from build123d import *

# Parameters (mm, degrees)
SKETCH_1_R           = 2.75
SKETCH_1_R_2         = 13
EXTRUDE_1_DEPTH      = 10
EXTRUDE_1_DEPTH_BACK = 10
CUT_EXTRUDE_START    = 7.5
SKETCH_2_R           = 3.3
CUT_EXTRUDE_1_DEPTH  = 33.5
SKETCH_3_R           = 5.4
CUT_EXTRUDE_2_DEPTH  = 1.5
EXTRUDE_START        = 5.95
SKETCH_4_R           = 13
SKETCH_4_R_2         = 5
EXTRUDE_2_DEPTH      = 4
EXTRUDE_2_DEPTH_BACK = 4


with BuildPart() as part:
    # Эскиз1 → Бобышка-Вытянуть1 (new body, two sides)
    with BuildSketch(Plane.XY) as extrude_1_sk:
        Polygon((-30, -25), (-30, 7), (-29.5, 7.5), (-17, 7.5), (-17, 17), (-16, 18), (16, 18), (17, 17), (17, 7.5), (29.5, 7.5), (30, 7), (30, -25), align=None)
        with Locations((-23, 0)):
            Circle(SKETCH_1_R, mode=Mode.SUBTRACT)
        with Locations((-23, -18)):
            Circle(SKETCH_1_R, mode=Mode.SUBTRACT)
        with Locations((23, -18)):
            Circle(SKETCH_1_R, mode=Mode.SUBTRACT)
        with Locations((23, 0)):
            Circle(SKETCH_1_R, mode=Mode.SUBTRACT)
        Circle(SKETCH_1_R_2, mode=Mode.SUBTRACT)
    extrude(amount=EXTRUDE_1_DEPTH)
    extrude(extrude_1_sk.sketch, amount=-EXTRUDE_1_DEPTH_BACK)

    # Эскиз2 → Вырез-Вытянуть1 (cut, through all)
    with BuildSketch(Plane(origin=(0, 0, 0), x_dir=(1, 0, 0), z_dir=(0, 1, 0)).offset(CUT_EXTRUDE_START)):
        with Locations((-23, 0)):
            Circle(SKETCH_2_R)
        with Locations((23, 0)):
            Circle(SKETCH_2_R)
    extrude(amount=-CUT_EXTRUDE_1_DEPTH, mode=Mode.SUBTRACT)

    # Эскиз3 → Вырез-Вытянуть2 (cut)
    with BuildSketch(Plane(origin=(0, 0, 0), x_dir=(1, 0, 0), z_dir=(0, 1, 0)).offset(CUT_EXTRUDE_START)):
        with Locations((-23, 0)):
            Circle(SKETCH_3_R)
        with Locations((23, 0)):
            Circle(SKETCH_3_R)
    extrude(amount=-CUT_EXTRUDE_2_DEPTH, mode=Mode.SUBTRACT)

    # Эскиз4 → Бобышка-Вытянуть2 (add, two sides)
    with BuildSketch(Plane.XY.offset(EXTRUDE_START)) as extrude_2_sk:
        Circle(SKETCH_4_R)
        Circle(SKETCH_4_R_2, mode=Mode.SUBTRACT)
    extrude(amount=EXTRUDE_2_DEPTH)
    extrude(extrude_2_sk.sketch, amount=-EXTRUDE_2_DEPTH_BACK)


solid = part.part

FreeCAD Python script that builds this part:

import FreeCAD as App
import Part
import Sketcher
from FreeCAD import Vector
Q = App.Units.Quantity


def add_polygon(sketch, points):
    """Adds a closed chain of lines whose ends are joined by coincident constraints."""
    first, n = sketch.GeometryCount, len(points)
    for a, b in zip(points, points[1:] + points[:1]):
        sketch.addGeometry(Part.LineSegment(App.Vector(*a, 0), App.Vector(*b, 0)), False)
    for i in range(n):
        sketch.addConstraint(Sketcher.Constraint("Coincident", first + i, 2, first + (i + 1) % n, 1))

doc = App.newDocument("Part")
body = doc.addObject("PartDesign::Body", "Body")

# Sketch on XY plane
sketch1 = body.newObject("Sketcher::SketchObject", "Sketch")
sketch1.AttachmentSupport = (doc.getObject("XY_Plane"), [""])
sketch1.MapMode = "FlatFace"
add_polygon(sketch1, [(-30, 7), (-30, -25), (30, -25), (30, 7), (29.5, 7.5), (17, 7.5), (17, 17), (16, 18), (-16, 18), (-17, 17), (-17, 7.5), (-29.5, 7.5)])  # lines 0-11
sketch1.addGeometry(Part.Circle(Vector(23, -18, 0), Vector(0, 0, 1), 2.8), False)  # 12
sketch1.addGeometry(Part.Circle(Vector(-23, -18, 0), Vector(0, 0, 1), 2.8), False)  # 13
sketch1.addGeometry(Part.Circle(Vector(23, 0, 0), Vector(0, 0, 1), 2.8), False)  # 14
sketch1.addGeometry(Part.Circle(Vector(0, 0, 0), Vector(0, 0, 1), 13), False)  # 15
sketch1.addGeometry(Part.Circle(Vector(-23, 0, 0), Vector(0, 0, 1), 2.8), False)  # 16
sketch1.addConstraint([
    Sketcher.Constraint("Vertical", 0),
    Sketcher.Constraint("Horizontal", 1),
    Sketcher.Constraint("Vertical", 2),
    Sketcher.Constraint("Horizontal", 4),
    Sketcher.Constraint("Vertical", 5),
    Sketcher.Constraint("Horizontal", 7),
    Sketcher.Constraint("Vertical", 9),
    Sketcher.Constraint("Horizontal", 10),
    Sketcher.Constraint("Coincident", 15, 3, -1, 1),
    Sketcher.Constraint("Equal", 12, 13),
    Sketcher.Constraint("Equal", 13, 14),
    Sketcher.Constraint("Equal", 14, 16),
    Sketcher.Constraint("Symmetric", 14, 3, 16, 3, -1, 1),
    Sketcher.Constraint("Symmetric", 12, 3, 13, 3, -2),
    Sketcher.Constraint("Symmetric", 5, 2, 8, 2, -2),
    Sketcher.Constraint("Symmetric", 3, 2, 10, 2, -2),
    Sketcher.Constraint("Symmetric", 2, 2, 11, 2, -2),
    Sketcher.Constraint("PointOnObject", 14, 3, -1),
    Sketcher.Constraint("Parallel", 3, 6),
    Sketcher.Constraint("Perpendicular", 6, 8),
    Sketcher.Constraint("Parallel", 8, 11),
    Sketcher.Constraint("Vertical", 12, 3, 14, 3),
    Sketcher.Constraint("Equal", 7, 0),
    Sketcher.Constraint("Diameter", 15, Q("26 mm")),
    Sketcher.Constraint("Diameter", 12, Q("5.5 mm")),
    Sketcher.Constraint("DistanceX", 1, 1, 1, 2, Q("60 mm")),
    Sketcher.Constraint("DistanceX", 7, 2, 7, 1, Q("32 mm")),
    Sketcher.Constraint("DistanceX", 4, 2, 4, 1, Q("12.5 mm")),
    Sketcher.Constraint("DistanceY", 5, 1, 5, 2, Q("9.5 mm")),
    Sketcher.Constraint("DistanceX", -1, 1, 12, 3, Q("23 mm")),
    Sketcher.Constraint("DistanceY", 12, 3, -1, 1, Q("18 mm")),
    Sketcher.Constraint("DistanceY", 0, 2, -1, 1, Q("25 mm")),
    Sketcher.Constraint("DistanceX", -1, 1, 4, 2, Q("17 mm")),
])
pad1 = body.newObject("PartDesign::Pad", "Pad")
pad1.Profile = sketch1
pad1.Type = "TwoLengths"
pad1.Length = 10
pad1.Length2 = 10

# Sketch on XZ plane
sketch2 = body.newObject("Sketcher::SketchObject", "Sketch001")
sketch2.AttachmentSupport = (doc.getObject("XZ_Plane"), [""])
sketch2.MapMode = "FlatFace"
sketch2.AttachmentOffset = App.Placement(Vector(0, 0, -7.5), App.Rotation())
sketch2.addGeometry([
    Part.Circle(Vector(-23, 0, 0), Vector(0, 0, 1), 3.3),
    Part.Circle(Vector(23, 0, 0), Vector(0, 0, 1), 3.3),
], False)
sketch2.addConstraint([
    Sketcher.Constraint("Equal", 0, 1),
    Sketcher.Constraint("Symmetric", 0, 3, 1, 3, -1, 1),
    Sketcher.Constraint("PointOnObject", 0, 3, -1),
    Sketcher.Constraint("Diameter", 0, Q("6.6 mm")),
    Sketcher.Constraint("DistanceX", 0, 3, -1, 1, Q("23 mm")),
])
pocket1 = body.newObject("PartDesign::Pocket", "Pocket")
pocket1.Profile = sketch2
pocket1.Type = "ThroughAll"
pocket1.Reversed = True

# Sketch on XZ plane
sketch3 = body.newObject("Sketcher::SketchObject", "Sketch002")
sketch3.AttachmentSupport = (doc.getObject("XZ_Plane"), [""])
sketch3.MapMode = "FlatFace"
sketch3.AttachmentOffset = App.Placement(Vector(0, 0, -7.5), App.Rotation())
sketch3.addGeometry([
    Part.Circle(Vector(-23, 0, 0), Vector(0, 0, 1), 5),
    Part.Circle(Vector(23, 0, 0), Vector(0, 0, 1), 5),
], False)
sketch3.addConstraint([
    Sketcher.Constraint("Equal", 0, 1),
    Sketcher.Constraint("Symmetric", 0, 3, 1, 3, -1, 1),
    Sketcher.Constraint("PointOnObject", 0, 3, -1),
    Sketcher.Constraint("Diameter", 0, Q("10.8 mm")),
    Sketcher.Constraint("DistanceX", 0, 3, -1, 1, Q("23 mm")),
])
pocket2 = body.newObject("PartDesign::Pocket", "Pocket001")
pocket2.Profile = sketch3
pocket2.Length = 1.5
pocket2.Reversed = True

# Sketch on XY plane
sketch4 = body.newObject("Sketcher::SketchObject", "Sketch003")
sketch4.AttachmentSupport = (doc.getObject("XY_Plane"), [""])
sketch4.MapMode = "FlatFace"
sketch4.AttachmentOffset = App.Placement(Vector(0, 0, 5.95), App.Rotation())
sketch4.addGeometry([
    Part.Circle(Vector(0, 0, 0), Vector(0, 0, 1), 13),
    Part.Circle(Vector(0, 0, 0), Vector(0, 0, 1), 5),
], False)
sketch4.addConstraint([
    Sketcher.Constraint("Coincident", 0, 3, -1, 1),
    Sketcher.Constraint("Coincident", 1, 3, -1, 1),
    Sketcher.Constraint("Diameter", 0, Q("26 mm")),
    Sketcher.Constraint("Diameter", 1, Q("10 mm")),
])
pad2 = body.newObject("PartDesign::Pad", "Pad001")
pad2.Profile = sketch4
pad2.Type = "TwoLengths"
pad2.Length = 4
pad2.Length2 = 4

doc.recompute()
